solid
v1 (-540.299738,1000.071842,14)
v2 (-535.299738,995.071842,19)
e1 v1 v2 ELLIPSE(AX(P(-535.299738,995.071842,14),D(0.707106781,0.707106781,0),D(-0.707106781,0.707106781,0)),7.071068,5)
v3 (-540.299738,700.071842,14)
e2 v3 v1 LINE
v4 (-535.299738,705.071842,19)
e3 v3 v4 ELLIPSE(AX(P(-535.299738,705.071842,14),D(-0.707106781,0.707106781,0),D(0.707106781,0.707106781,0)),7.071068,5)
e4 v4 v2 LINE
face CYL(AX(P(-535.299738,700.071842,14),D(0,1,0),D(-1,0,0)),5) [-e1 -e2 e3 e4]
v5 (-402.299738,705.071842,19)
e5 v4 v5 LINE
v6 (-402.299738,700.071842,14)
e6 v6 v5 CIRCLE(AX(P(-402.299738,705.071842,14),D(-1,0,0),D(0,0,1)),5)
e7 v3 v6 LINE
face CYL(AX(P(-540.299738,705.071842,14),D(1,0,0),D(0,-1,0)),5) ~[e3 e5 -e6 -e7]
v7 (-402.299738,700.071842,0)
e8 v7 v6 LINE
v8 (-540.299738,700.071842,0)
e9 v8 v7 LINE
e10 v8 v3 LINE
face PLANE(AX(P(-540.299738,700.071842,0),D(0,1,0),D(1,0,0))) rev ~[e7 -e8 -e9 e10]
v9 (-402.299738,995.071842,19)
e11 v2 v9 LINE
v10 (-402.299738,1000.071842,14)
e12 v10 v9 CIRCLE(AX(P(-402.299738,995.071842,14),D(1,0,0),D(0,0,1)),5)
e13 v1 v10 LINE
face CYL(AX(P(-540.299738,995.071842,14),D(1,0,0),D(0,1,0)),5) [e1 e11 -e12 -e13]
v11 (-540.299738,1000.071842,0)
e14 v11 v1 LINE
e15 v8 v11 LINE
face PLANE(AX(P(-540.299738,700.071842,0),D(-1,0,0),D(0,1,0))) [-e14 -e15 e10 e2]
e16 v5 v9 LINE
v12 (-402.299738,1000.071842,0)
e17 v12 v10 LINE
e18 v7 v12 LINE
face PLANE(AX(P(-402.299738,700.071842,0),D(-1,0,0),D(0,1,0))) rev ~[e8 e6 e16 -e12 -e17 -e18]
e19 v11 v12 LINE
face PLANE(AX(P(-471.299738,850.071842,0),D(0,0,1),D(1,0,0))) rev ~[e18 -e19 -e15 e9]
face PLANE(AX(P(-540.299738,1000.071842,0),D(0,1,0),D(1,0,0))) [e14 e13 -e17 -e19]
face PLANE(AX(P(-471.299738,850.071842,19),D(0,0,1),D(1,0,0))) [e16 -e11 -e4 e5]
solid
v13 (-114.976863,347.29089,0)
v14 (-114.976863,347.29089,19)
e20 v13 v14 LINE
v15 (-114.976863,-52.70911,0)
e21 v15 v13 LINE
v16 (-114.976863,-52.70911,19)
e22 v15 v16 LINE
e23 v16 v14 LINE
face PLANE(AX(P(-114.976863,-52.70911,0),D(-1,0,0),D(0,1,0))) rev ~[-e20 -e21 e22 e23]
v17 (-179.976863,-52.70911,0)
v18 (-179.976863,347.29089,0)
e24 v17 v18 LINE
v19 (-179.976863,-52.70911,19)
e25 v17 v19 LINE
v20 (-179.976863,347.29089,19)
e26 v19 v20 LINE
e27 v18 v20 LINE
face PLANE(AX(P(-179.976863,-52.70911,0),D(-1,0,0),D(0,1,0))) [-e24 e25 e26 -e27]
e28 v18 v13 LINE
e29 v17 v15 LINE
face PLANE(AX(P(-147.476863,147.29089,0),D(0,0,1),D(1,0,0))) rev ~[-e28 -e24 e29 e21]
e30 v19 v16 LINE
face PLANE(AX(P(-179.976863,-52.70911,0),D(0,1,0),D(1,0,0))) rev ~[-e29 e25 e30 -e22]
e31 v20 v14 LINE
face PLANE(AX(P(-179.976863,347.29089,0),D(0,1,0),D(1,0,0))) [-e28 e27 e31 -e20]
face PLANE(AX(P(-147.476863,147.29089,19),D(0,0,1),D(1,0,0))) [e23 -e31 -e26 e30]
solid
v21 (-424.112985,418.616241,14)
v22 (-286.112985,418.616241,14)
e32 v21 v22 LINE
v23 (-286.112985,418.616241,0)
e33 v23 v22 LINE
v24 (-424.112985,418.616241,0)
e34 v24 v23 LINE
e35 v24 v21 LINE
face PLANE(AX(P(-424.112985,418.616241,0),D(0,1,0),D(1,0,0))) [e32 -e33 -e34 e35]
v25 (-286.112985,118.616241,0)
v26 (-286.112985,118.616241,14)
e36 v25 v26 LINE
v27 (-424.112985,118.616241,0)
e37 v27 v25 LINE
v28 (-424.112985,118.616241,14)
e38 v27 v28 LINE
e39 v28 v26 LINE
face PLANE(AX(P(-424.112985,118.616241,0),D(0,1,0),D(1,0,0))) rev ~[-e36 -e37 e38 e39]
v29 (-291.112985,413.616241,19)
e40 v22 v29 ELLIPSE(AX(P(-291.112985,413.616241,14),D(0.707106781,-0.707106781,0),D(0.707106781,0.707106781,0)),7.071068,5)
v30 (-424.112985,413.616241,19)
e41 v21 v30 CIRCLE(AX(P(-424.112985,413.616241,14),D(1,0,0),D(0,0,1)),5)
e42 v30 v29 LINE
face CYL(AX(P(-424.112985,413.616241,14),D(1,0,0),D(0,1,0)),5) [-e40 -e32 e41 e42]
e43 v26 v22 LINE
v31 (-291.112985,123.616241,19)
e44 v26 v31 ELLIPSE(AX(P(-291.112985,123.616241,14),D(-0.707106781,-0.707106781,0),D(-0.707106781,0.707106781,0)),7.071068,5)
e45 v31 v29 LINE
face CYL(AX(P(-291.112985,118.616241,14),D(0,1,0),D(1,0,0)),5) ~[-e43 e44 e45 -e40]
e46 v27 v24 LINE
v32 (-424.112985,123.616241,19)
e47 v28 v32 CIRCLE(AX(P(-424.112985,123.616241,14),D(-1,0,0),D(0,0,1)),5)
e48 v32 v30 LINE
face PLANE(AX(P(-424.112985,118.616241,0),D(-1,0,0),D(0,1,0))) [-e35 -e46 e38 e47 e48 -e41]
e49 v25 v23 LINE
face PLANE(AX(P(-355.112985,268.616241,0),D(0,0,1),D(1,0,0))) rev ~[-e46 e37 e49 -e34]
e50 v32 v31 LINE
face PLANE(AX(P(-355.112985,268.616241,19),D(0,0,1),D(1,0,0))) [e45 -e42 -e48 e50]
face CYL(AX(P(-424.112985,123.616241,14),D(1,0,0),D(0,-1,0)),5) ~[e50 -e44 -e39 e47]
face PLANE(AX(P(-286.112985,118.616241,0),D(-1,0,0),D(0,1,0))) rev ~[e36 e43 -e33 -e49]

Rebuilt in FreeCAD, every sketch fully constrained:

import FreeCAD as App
import Part
import Sketcher


def edges_at(feature, points):
    """Names of the edges that pass closest to the given points."""
    edges = feature.Shape.Edges
    near = lambda p: min(range(len(edges)), key=lambda i: edges[i].distToShape(Part.Vertex(*p))[0])
    return sorted({f"Edge{near(p) + 1}" for p in points})

doc = App.newDocument("Part")
body = doc.addObject("PartDesign::Body", "Body")

# Sketch on XY plane
sketch1 = doc.addObject("Sketcher::SketchObject", "Sketch")
body.addObject(sketch1)
sketch1.AttachmentSupport = (doc.XY_Plane, [""])
sketch1.MapMode = "FlatFace"
sketch1.addGeometry([
    Part.LineSegment(App.Vector(-179.976863, 347.29089, 0), App.Vector(-179.976863, -52.70911, 0)),
    Part.LineSegment(App.Vector(-179.976863, -52.70911, 0), App.Vector(-114.976863, -52.70911, 0)),
    Part.LineSegment(App.Vector(-114.976863, -52.70911, 0), App.Vector(-114.976863, 347.29089, 0)),
    Part.LineSegment(App.Vector(-114.976863, 347.29089, 0), App.Vector(-179.976863, 347.29089, 0)),
], False)
sketch1.addConstraint([
    Sketcher.Constraint("Coincident", 0, 2, 1, 1),
    Sketcher.Constraint("Coincident", 1, 2, 2, 1),
    Sketcher.Constraint("Coincident", 2, 2, 3, 1),
    Sketcher.Constraint("Coincident", 3, 2, 0, 1),
    Sketcher.Constraint("Vertical", 0),
    Sketcher.Constraint("Horizontal", 1),
    Sketcher.Constraint("Vertical", 2),
    Sketcher.Constraint("Horizontal", 3),
    Sketcher.Constraint("DistanceX", 1, 1, 1, 2, 65.0),
    Sketcher.Constraint("DistanceY", 0, 2, 0, 1, 400.0),
    Sketcher.Constraint("DistanceY", 0, 2, -1, 1, 52.70911),
    Sketcher.Constraint("DistanceX", 0, 2, -1, 1, 179.976863),
])
pad1 = doc.addObject("PartDesign::Pad", "Pad")
body.addObject(pad1)
pad1.Profile = sketch1
pad1.Length = 19
body2 = doc.addObject("PartDesign::Body", "Body001")

# Sketch on XY plane
sketch2 = doc.addObject("Sketcher::SketchObject", "Sketch001")
body2.addObject(sketch2)
sketch2.AttachmentSupport = (doc.getObject("XY_Plane001"), [""])
sketch2.MapMode = "FlatFace"
sketch2.addGeometry([
    Part.LineSegment(App.Vector(-424.112985, 418.616241, 0), App.Vector(-424.112985, 118.616241, 0)),
    Part.LineSegment(App.Vector(-424.112985, 118.616241, 0), App.Vector(-286.112985, 118.616241, 0)),
    Part.LineSegment(App.Vector(-286.112985, 118.616241, 0), App.Vector(-286.112985, 418.616241, 0)),
    Part.LineSegment(App.Vector(-286.112985, 418.616241, 0), App.Vector(-424.112985, 418.616241, 0)),
], False)
sketch2.addConstraint([
    Sketcher.Constraint("Coincident", 0, 2, 1, 1),
    Sketcher.Constraint("Coincident", 1, 2, 2, 1),
    Sketcher.Constraint("Coincident", 2, 2, 3, 1),
    Sketcher.Constraint("Coincident", 3, 2, 0, 1),
    Sketcher.Constraint("Vertical", 0),
    Sketcher.Constraint("Horizontal", 1),
    Sketcher.Constraint("Vertical", 2),
    Sketcher.Constraint("Horizontal", 3),
    Sketcher.Constraint("DistanceX", 1, 1, 1, 2, 138.0),
    Sketcher.Constraint("DistanceY", 0, 2, 0, 1, 300.0),
    Sketcher.Constraint("DistanceY", -1, 1, 0, 2, 118.616241),
    Sketcher.Constraint("DistanceX", 0, 2, -1, 1, 424.112985),
])
pad2 = doc.addObject("PartDesign::Pad", "Pad001")
body2.addObject(pad2)
pad2.Profile = sketch2
pad2.Length = 19
doc.recompute()

fillet = doc.addObject("PartDesign::Fillet", "Fillet")
body2.addObject(fillet)
fillet.Base = (pad2, edges_at(pad2, [(-355.113, 418.616, 19), (-286.113, 268.616, 19), (-355.113, 118.616, 19)]))
fillet.Radius = 5
body3 = doc.addObject("PartDesign::Body", "Body002")

# Sketch on XY plane
sketch3 = doc.addObject("Sketcher::SketchObject", "Sketch002")
body3.addObject(sketch3)
sketch3.AttachmentSupport = (doc.getObject("XY_Plane002"), [""])
sketch3.MapMode = "FlatFace"
sketch3.addGeometry([
    Part.LineSegment(App.Vector(-540.299738, 1000.071842, 0), App.Vector(-540.299738, 700.071842, 0)),
    Part.LineSegment(App.Vector(-540.299738, 700.071842, 0), App.Vector(-402.299738, 700.071842, 0)),
    Part.LineSegment(App.Vector(-402.299738, 700.071842, 0), App.Vector(-402.299738, 1000.071842, 0)),
    Part.LineSegment(App.Vector(-402.299738, 1000.071842, 0), App.Vector(-540.299738, 1000.071842, 0)),
], False)
sketch3.addConstraint([
    Sketcher.Constraint("Coincident", 0, 2, 1, 1),
    Sketcher.Constraint("Coincident", 1, 2, 2, 1),
    Sketcher.Constraint("Coincident", 2, 2, 3, 1),
    Sketcher.Constraint("Coincident", 3, 2, 0, 1),
    Sketcher.Constraint("Vertical", 0),
    Sketcher.Constraint("Horizontal", 1),
    Sketcher.Constraint("Vertical", 2),
    Sketcher.Constraint("Horizontal", 3),
    Sketcher.Constraint("DistanceX", 1, 1, 1, 2, 138.0),
    Sketcher.Constraint("DistanceY", 0, 2, 0, 1, 300.0),
    Sketcher.Constraint("DistanceX", 0, 2, -1, 1, 540.299738),
    Sketcher.Constraint("DistanceY", -1, 1, 0, 2, 700.071842),
])
pad3 = doc.addObject("PartDesign::Pad", "Pad002")
body3.addObject(pad3)
pad3.Profile = sketch3
pad3.Length = 19
doc.recompute()

fillet2 = doc.addObject("PartDesign::Fillet", "Fillet001")
body3.addObject(fillet2)
fillet2.Base = (pad3, edges_at(pad3, [(-540.3, 850.072, 19), (-471.3, 700.072, 19), (-471.3, 1000.072, 19)]))
fillet2.Radius = 5

doc.recompute()
